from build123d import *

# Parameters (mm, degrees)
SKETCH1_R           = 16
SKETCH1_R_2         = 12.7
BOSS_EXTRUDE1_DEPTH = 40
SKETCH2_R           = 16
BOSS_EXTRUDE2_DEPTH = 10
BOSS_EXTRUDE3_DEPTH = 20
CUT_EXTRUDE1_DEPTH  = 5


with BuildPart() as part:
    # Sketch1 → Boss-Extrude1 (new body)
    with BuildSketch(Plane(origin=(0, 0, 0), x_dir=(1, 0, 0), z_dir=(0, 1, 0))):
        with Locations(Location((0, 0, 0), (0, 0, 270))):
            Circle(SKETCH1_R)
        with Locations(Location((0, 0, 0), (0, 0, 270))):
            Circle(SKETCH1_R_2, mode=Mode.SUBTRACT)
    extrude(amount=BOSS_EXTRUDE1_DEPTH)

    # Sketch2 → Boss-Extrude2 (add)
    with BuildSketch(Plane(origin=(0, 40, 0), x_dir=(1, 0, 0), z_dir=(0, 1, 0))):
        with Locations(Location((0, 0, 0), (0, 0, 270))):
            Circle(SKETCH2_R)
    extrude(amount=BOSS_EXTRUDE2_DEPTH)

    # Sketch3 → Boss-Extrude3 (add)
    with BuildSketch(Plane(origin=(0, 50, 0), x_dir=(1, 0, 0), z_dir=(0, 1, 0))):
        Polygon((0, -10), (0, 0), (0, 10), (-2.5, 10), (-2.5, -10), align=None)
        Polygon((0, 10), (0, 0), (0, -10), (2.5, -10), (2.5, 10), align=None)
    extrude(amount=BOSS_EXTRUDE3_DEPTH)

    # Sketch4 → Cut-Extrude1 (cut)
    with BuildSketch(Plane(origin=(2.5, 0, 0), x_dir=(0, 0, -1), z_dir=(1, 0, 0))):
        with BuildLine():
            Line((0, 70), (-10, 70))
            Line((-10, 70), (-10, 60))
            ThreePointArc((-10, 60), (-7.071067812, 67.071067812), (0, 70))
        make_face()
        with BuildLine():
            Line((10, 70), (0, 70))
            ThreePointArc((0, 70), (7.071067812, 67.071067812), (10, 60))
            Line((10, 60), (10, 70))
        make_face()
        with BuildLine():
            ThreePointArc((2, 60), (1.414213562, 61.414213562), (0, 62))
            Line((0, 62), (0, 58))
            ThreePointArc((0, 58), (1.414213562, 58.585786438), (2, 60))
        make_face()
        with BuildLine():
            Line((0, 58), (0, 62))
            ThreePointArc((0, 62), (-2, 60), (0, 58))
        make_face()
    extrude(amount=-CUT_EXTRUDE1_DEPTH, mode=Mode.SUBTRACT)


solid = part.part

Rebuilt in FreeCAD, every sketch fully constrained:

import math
import FreeCAD as App
import Part
import Sketcher
from FreeCAD import Vector


def add_polygon(sketch, points):
    """Adds a closed chain of lines whose ends are joined by coincident constraints."""
    first, n = sketch.GeometryCount, len(points)
    for a, b in zip(points, points[1:] + points[:1]):
        sketch.addGeometry(Part.LineSegment(App.Vector(*a, 0), App.Vector(*b, 0)), False)
    for i in range(n):
        sketch.addConstraint(Sketcher.Constraint("Coincident", first + i, 2, first + (i + 1) % n, 1))

doc = App.newDocument("Part")
body = doc.addObject("PartDesign::Body", "Body")

# Sketch on XZ plane
sketch1 = body.newObject("Sketcher::SketchObject", "Sketch")
sketch1.AttachmentSupport = (doc.getObject("XZ_Plane"), [""])
sketch1.MapMode = "FlatFace"
sketch1.addGeometry([
    Part.Circle(Vector(0, 0, 0), Vector(0, 0, 1), 16),
    Part.Circle(Vector(0, 0, 0), Vector(0, 0, 1), 13),
], False)
sketch1.addConstraint([
    Sketcher.Constraint("Coincident", 0, 3, -1, 1),
    Sketcher.Constraint("Coincident", 1, 3, -1, 1),
    Sketcher.Constraint("Diameter", 0, 32.0),
    Sketcher.Constraint("Diameter", 1, 25.4),
])
pad1 = body.newObject("PartDesign::Pad", "Pad")
pad1.Profile = sketch1
pad1.Length = 40
pad1.Reversed = True

# Sketch on XZ plane
sketch2 = body.newObject("Sketcher::SketchObject", "Sketch001")
sketch2.AttachmentSupport = (doc.getObject("XZ_Plane"), [""])
sketch2.MapMode = "FlatFace"
sketch2.AttachmentOffset = App.Placement(Vector(0, 0, -40), App.Rotation())
sketch2.addGeometry(Part.Circle(Vector(0, 0, 0), Vector(0, 0, 1), 16), False)
sketch2.addConstraint([
    Sketcher.Constraint("Coincident", 0, 3, -1, 1),
    Sketcher.Constraint("Diameter", 0, 32.0),
])
pad2 = body.newObject("PartDesign::Pad", "Pad001")
pad2.Profile = sketch2
pad2.Length = 10
pad2.Reversed = True

# Sketch on XZ plane
sketch3 = body.newObject("Sketcher::SketchObject", "Sketch002")
sketch3.AttachmentSupport = (doc.getObject("XZ_Plane"), [""])
sketch3.MapMode = "FlatFace"
sketch3.AttachmentOffset = App.Placement(Vector(0, 0, -50), App.Rotation())
add_polygon(sketch3, [(-2, -10), (-2, 10), (2, 10), (2, -10)])  # lines 0-3
sketch3.addConstraint([
    Sketcher.Constraint("Vertical", 0),
    Sketcher.Constraint("Horizontal", 1),
    Sketcher.Constraint("Vertical", 2),
    Sketcher.Constraint("Horizontal", 3),
    Sketcher.Constraint("Symmetric", 0, 2, 2, 2, -1, 1),
    Sketcher.Constraint("DistanceX", 1, 1, 1, 2, 5.0),
    Sketcher.Constraint("DistanceY", 0, 1, 0, 2, 20.0),
])
pad3 = body.newObject("PartDesign::Pad", "Pad002")
pad3.Profile = sketch3
pad3.Length = 20
pad3.Reversed = True

# Sketch on YZ plane
sketch4 = body.newObject("Sketcher::SketchObject", "Sketch003")
sketch4.AttachmentSupport = (doc.getObject("YZ_Plane"), [""])
sketch4.MapMode = "FlatFace"
sketch4.AttachmentOffset = App.Placement(Vector(0, 0, 2.5), App.Rotation())
sketch4.addGeometry([
    Part.LineSegment(Vector(70, 0, 0), Vector(70, 10, 0)),  # 0
    Part.LineSegment(Vector(70, 10, 0), Vector(60, 10, 0)),  # 1
    Part.ArcOfCircle(Part.Circle(Vector(60, 0, 0), Vector(0, 0, 1), 10), math.radians(0), math.radians(90)),  # 2
    Part.LineSegment(Vector(70, -10, 0), Vector(70, 0, 0)),  # 3
    Part.ArcOfCircle(Part.Circle(Vector(60, 0, 0), Vector(0, 0, 1), 10), math.radians(-90), math.radians(0)),  # 4
    Part.LineSegment(Vector(60, -10, 0), Vector(70, -10, 0)),  # 5
    Part.ArcOfCircle(Part.Circle(Vector(60, 0, 0), Vector(0, 0, 1), 2), math.radians(-90), math.radians(0)),  # 6
    Part.ArcOfCircle(Part.Circle(Vector(60, 0, 0), Vector(0, 0, 1), 2), math.radians(0), math.radians(180)),  # 7
    Part.ArcOfCircle(Part.Circle(Vector(60, 0, 0), Vector(0, 0, 1), 2), math.radians(-180), math.radians(-90)),  # 8
], False)
sketch4.addConstraint([
    Sketcher.Constraint("Coincident", 0, 2, 1, 1),
    Sketcher.Constraint("Tangent", 1, 2, 2, 2),
    Sketcher.Constraint("Tangent", 2, 1, 0, 1),
    Sketcher.Constraint("Tangent", 3, 2, 4, 2),
    Sketcher.Constraint("Tangent", 4, 1, 5, 1),
    Sketcher.Constraint("Coincident", 5, 2, 3, 1),
    Sketcher.Constraint("Tangent", 6, 2, 7, 1),
    Sketcher.Constraint("Tangent", 7, 2, 8, 1),
    Sketcher.Constraint("Tangent", 8, 2, 6, 1),
    Sketcher.Constraint("Vertical", 0),
    Sketcher.Constraint("Horizontal", 1),
    Sketcher.Constraint("Vertical", 3),
    Sketcher.Constraint("Horizontal", 5),
    Sketcher.Constraint("Coincident", 4, 3, 2, 3),
    Sketcher.Constraint("Coincident", 6, 3, 2, 3),
    Sketcher.Constraint("Equal", 2, 4),
    Sketcher.Constraint("PointOnObject", 2, 3, -1),
    Sketcher.Constraint("PointOnObject", 6, 2, -1),
    Sketcher.Constraint("PointOnObject", 7, 2, -1),
    Sketcher.Constraint("Vertical", 4, 1, 8, 2),
    Sketcher.Constraint("Radius", 2, 10.0),
    Sketcher.Constraint("Radius", 6, 2.0),
    Sketcher.Constraint("DistanceX", -1, 1, 2, 3, 60.0),
])
pocket1 = body.newObject("PartDesign::Pocket", "Pocket")
pocket1.Profile = sketch4
pocket1.Length = 5

doc.recompute()
